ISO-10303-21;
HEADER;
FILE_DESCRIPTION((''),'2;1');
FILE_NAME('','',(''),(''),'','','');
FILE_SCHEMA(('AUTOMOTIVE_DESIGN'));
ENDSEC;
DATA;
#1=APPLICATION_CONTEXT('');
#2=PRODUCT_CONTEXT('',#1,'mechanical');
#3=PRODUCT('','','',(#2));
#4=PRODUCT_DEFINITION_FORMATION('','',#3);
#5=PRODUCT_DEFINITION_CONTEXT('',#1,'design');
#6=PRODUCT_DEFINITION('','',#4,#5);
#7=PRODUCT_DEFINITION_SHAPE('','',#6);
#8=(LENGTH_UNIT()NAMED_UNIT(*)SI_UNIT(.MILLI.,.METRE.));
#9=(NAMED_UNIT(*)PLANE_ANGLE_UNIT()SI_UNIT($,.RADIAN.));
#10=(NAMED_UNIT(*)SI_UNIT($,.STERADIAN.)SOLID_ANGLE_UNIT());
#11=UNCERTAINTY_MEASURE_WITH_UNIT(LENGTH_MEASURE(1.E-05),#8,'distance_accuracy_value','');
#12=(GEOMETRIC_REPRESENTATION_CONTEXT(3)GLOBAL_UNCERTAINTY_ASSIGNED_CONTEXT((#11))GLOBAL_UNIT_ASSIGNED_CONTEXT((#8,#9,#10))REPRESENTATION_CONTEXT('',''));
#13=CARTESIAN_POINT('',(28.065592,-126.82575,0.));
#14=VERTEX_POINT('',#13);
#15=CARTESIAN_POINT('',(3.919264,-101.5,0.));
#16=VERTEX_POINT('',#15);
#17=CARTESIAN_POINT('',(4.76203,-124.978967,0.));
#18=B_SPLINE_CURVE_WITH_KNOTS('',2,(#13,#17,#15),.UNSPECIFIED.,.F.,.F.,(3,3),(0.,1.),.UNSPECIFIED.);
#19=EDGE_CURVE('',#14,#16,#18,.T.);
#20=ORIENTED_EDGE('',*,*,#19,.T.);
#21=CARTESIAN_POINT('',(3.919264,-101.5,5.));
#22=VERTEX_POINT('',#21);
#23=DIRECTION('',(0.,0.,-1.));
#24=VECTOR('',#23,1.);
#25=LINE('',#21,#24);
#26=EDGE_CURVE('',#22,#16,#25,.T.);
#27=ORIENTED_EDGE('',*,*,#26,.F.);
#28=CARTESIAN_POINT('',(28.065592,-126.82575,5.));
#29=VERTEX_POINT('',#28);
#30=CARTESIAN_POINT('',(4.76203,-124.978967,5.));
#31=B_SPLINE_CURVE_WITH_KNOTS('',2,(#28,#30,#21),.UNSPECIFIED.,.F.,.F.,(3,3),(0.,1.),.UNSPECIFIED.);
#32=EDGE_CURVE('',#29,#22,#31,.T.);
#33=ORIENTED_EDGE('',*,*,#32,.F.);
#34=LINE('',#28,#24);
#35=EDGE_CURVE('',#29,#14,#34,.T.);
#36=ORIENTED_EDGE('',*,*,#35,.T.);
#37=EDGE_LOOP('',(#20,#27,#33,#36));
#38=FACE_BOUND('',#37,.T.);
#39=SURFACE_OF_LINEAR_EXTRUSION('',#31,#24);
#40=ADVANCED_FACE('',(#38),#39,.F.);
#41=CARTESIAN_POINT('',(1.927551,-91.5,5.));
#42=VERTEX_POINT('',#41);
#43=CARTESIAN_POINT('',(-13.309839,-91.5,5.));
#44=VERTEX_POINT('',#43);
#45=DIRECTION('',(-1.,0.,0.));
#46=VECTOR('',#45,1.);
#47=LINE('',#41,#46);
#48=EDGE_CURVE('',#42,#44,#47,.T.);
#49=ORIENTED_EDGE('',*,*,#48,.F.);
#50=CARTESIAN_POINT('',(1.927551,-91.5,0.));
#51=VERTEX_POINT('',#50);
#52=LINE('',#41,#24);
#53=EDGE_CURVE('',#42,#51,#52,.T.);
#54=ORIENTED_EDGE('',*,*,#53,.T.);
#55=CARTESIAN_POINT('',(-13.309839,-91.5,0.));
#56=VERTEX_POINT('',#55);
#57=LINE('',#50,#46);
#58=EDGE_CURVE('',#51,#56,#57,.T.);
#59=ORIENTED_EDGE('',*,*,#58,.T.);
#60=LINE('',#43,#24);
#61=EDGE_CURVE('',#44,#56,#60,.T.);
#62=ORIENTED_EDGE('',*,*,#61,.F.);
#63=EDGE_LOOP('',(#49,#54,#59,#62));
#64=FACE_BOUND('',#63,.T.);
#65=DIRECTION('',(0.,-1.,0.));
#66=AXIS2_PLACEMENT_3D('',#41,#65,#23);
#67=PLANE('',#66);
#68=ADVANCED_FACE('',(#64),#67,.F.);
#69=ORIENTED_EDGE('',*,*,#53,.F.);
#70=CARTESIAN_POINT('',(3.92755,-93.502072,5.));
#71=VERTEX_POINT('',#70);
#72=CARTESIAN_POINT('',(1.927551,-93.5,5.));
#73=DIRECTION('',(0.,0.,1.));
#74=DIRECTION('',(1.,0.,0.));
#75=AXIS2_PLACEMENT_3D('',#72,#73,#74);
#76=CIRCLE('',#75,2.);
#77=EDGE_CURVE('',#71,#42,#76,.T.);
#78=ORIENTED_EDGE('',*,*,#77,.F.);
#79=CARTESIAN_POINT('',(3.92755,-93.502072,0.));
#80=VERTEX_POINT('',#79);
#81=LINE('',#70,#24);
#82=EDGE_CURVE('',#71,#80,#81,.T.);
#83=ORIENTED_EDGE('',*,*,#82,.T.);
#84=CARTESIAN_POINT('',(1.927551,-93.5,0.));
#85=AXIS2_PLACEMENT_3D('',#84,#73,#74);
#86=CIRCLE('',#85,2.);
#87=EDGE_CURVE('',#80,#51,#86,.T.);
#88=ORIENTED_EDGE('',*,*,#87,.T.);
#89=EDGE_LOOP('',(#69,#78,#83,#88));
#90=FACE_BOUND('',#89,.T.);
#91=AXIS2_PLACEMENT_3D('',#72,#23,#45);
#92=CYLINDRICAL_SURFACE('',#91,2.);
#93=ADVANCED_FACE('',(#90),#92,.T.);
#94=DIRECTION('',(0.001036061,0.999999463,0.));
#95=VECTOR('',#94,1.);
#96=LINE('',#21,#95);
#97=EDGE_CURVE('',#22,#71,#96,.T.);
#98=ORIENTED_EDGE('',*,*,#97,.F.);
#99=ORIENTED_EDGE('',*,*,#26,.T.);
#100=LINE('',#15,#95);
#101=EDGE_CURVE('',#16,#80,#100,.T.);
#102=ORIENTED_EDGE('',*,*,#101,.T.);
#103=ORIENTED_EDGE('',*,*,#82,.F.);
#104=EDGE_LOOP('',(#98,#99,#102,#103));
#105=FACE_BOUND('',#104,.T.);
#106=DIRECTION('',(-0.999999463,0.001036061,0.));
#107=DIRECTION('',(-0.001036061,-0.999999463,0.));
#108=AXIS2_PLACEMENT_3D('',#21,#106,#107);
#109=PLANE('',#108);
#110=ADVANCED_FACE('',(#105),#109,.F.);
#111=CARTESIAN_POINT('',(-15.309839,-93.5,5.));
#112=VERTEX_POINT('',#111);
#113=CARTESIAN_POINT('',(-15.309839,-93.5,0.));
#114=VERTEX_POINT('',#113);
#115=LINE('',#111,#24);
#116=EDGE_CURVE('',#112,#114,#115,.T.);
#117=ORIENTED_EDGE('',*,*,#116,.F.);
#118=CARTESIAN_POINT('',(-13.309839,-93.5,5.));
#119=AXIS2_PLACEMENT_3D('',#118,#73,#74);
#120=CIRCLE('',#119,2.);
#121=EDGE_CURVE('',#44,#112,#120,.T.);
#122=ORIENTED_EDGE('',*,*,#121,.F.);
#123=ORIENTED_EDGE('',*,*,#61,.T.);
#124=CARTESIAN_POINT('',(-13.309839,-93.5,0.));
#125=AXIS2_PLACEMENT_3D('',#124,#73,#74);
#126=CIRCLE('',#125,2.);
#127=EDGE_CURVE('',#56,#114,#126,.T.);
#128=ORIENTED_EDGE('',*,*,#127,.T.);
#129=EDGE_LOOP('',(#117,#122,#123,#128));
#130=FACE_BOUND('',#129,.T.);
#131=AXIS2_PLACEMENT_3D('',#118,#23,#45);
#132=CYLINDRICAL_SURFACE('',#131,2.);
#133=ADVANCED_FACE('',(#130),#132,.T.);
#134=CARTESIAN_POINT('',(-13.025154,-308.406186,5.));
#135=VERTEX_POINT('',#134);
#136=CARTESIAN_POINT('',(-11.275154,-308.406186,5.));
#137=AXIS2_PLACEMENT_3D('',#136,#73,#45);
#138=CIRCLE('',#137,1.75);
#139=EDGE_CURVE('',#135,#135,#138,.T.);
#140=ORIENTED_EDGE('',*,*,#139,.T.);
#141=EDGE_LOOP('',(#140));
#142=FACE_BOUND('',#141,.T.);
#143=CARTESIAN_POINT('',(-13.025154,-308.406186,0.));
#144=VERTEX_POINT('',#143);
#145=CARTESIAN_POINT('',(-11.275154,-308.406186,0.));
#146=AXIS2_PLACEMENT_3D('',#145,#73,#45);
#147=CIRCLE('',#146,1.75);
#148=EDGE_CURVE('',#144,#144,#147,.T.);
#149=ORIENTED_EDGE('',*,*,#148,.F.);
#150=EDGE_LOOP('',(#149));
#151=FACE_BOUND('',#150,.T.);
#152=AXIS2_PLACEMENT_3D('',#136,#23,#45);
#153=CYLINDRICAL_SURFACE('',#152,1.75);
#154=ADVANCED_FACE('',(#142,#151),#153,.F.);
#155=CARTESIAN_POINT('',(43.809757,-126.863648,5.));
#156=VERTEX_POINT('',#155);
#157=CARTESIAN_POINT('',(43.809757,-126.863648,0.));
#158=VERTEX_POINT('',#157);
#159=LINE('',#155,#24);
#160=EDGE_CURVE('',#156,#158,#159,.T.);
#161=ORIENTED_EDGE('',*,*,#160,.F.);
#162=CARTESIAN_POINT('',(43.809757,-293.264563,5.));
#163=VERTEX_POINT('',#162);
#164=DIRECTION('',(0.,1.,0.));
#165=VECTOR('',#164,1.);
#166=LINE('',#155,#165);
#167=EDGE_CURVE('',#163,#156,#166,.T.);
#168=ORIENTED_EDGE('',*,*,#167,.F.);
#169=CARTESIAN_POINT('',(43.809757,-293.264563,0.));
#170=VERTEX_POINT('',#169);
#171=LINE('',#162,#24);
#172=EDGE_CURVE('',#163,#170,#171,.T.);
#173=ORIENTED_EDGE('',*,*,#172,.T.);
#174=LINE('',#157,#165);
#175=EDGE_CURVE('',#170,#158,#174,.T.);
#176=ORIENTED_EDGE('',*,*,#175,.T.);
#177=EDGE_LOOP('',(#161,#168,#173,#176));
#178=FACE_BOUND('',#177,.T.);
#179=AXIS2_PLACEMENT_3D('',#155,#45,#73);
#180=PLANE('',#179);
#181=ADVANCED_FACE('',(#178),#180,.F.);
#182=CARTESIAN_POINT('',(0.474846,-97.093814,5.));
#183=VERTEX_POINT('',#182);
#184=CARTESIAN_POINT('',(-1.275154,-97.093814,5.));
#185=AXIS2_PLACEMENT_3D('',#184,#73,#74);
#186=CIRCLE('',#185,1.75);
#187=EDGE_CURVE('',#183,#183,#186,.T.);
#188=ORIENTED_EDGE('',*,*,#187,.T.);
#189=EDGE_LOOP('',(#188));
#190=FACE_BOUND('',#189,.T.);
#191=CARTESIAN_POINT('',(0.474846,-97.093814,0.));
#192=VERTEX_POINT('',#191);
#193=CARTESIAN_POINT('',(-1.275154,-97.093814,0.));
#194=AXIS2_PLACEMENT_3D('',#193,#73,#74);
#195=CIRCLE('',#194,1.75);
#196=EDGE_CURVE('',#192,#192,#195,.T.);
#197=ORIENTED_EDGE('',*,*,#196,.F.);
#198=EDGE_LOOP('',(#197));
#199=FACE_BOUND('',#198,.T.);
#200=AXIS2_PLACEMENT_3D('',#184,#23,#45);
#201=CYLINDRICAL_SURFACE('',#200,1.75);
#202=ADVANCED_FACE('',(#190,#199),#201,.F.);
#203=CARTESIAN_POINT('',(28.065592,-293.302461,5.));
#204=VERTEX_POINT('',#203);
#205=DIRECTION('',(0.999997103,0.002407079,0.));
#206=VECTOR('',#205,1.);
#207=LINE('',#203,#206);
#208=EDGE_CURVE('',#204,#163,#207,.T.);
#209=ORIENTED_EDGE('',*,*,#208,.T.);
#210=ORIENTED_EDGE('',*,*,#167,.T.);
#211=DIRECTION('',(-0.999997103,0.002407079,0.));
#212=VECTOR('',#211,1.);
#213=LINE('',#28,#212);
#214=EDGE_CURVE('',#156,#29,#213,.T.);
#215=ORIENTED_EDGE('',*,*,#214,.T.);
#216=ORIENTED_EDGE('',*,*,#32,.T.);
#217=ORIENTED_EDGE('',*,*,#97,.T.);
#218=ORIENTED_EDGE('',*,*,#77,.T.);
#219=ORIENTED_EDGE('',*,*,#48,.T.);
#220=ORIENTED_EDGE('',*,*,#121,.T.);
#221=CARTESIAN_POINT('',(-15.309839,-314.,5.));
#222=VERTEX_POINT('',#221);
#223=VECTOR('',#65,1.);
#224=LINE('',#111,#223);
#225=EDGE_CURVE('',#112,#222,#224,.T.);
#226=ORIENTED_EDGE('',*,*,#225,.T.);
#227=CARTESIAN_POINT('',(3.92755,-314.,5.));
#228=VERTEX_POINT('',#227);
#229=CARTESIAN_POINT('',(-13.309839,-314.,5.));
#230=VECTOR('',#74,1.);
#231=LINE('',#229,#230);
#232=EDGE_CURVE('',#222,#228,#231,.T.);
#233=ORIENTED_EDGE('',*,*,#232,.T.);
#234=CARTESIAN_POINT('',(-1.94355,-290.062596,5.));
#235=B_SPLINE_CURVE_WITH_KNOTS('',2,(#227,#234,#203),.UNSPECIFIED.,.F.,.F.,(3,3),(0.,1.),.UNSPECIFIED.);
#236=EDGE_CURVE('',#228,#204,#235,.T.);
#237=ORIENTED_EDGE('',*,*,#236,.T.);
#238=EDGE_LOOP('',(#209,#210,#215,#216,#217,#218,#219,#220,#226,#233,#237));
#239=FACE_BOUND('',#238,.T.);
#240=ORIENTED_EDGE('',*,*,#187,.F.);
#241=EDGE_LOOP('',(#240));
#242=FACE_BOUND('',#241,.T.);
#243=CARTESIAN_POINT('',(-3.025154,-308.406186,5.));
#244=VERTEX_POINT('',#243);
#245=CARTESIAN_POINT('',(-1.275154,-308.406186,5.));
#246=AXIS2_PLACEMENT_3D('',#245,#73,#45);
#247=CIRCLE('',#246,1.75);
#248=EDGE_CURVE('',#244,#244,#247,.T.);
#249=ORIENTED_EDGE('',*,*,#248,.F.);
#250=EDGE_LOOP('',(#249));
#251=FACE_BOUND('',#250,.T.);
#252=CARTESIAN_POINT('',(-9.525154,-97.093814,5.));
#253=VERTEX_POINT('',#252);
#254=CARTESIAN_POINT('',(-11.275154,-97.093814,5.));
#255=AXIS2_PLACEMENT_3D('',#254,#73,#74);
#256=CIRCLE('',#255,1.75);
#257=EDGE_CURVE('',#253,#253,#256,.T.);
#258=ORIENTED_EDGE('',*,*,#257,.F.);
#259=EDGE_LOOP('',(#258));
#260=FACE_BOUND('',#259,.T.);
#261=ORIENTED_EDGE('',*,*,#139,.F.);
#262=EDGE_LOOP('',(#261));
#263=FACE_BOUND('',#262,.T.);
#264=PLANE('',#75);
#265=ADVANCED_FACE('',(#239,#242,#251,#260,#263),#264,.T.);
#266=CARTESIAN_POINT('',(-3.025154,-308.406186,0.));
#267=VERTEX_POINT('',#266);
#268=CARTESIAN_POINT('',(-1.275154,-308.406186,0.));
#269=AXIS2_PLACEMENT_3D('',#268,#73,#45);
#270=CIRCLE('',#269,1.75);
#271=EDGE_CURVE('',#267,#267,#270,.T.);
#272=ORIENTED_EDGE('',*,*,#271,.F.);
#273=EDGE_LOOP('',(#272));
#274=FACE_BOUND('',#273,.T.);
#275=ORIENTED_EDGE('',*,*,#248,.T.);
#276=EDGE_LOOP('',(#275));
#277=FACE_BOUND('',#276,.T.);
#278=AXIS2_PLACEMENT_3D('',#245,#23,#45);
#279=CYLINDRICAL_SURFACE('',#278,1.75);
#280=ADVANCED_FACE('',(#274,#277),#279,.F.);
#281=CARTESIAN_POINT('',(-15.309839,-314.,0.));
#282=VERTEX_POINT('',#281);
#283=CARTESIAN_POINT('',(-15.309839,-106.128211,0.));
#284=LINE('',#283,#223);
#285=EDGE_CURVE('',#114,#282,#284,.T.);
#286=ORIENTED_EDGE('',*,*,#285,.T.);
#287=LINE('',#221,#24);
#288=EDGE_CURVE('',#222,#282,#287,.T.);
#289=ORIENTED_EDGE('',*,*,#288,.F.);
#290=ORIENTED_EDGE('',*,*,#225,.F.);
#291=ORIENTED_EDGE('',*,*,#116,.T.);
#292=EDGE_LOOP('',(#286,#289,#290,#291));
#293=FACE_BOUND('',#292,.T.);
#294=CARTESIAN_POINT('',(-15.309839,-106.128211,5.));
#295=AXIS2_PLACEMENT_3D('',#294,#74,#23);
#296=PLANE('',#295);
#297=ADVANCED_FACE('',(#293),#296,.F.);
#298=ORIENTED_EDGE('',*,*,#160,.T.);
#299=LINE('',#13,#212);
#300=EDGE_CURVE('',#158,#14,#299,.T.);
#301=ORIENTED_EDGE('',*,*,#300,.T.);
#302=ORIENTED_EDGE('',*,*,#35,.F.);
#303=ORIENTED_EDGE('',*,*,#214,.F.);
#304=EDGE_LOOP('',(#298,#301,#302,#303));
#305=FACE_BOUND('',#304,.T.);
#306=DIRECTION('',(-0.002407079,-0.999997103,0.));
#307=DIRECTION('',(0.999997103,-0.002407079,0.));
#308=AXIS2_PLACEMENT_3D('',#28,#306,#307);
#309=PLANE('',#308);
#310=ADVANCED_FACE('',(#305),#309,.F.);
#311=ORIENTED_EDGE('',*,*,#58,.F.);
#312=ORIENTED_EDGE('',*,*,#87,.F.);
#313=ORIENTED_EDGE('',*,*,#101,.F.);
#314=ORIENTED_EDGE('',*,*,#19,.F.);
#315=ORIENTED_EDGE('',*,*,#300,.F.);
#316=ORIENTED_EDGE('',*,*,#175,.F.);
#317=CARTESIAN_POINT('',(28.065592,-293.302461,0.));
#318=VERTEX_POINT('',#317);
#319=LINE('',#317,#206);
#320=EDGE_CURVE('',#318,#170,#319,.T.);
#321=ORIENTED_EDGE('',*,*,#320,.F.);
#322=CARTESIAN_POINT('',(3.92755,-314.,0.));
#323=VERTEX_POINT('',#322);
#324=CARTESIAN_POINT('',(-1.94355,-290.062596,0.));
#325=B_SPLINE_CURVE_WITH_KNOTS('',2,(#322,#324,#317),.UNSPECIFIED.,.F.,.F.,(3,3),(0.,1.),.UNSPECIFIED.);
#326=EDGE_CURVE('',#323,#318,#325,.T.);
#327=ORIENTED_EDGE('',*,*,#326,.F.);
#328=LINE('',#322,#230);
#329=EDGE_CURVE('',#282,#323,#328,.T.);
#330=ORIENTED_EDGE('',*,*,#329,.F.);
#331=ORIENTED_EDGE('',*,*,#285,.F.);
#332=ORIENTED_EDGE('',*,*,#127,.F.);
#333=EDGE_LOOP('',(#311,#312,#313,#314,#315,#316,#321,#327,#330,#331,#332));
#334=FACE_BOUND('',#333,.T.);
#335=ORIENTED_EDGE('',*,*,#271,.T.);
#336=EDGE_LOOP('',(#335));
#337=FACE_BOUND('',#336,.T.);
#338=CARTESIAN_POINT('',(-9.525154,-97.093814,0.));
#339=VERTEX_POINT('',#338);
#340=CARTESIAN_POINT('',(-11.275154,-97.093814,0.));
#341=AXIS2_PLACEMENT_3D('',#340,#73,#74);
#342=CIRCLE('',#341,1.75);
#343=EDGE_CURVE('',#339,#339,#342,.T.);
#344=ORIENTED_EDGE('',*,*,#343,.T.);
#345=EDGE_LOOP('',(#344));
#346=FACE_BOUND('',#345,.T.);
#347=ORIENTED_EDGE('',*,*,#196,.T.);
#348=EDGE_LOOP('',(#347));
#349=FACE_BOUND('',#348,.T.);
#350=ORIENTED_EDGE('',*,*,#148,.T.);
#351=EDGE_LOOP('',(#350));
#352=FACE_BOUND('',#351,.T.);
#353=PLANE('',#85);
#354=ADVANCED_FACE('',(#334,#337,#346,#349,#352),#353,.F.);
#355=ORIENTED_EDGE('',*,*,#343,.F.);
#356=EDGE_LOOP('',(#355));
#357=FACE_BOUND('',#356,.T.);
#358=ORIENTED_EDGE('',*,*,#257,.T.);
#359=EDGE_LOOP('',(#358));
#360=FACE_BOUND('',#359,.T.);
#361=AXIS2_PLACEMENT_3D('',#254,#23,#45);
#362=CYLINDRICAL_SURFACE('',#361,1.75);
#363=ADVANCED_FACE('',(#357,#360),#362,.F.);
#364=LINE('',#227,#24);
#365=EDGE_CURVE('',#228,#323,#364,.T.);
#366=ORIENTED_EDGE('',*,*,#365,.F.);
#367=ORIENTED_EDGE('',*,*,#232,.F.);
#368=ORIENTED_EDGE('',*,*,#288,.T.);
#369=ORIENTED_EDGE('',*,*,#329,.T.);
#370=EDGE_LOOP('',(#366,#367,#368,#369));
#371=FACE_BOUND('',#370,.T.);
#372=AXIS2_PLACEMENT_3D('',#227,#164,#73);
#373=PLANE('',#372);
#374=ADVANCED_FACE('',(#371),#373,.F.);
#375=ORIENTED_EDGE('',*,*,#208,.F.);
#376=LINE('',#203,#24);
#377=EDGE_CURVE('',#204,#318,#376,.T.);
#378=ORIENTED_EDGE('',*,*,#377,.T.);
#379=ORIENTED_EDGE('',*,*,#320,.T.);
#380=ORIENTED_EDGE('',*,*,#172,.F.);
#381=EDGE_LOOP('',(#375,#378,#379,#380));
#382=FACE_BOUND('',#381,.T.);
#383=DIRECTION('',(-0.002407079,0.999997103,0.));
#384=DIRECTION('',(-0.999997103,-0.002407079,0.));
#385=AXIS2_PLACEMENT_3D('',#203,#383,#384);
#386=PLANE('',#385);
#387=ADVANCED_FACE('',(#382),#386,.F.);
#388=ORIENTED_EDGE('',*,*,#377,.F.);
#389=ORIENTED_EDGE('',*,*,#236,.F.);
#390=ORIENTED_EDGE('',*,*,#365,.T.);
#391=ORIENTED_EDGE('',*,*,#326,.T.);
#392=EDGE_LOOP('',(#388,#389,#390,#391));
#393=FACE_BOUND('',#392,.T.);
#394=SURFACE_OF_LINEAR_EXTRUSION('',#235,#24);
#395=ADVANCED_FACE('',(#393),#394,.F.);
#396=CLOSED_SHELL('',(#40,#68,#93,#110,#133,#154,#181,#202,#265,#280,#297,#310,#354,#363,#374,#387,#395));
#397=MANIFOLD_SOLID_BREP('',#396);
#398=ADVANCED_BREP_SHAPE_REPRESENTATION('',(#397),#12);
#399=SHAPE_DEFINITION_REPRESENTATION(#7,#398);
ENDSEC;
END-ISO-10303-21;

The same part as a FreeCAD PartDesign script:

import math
import FreeCAD as App
import Part
import Sketcher
from FreeCAD import Vector
Q = App.Units.Quantity

doc = App.newDocument("Part")
body = doc.addObject("PartDesign::Body", "Body")

# Sketch on XY plane
sketch1 = body.newObject("Sketcher::SketchObject", "Sketch")
sketch1.AttachmentSupport = (doc.getObject("XY_Plane"), [""])
sketch1.MapMode = "FlatFace"
sketch1.addGeometry([
    Part.LineSegment(Vector(-15.309839, -314, 0), Vector(3.92755, -314, 0)),  # 0
    Part.BSplineCurve([Vector(3.92755, -314, 0), Vector(-1.94355, -290.062596, 0), Vector(28.065592, -293.302461, 0)], [3, 3], [0, 1], False, 2, [1, 1, 1], False),  # 1
    Part.LineSegment(Vector(28.065592, -293.302461, 0), Vector(43.809757, -293.264563, 0)),  # 2
    Part.LineSegment(Vector(43.809757, -293.264563, 0), Vector(43.809757, -126.863648, 0)),  # 3
    Part.LineSegment(Vector(43.809757, -126.863648, 0), Vector(28.065592, -126.82575, 0)),  # 4
    Part.BSplineCurve([Vector(3.919264, -101.5, 0), Vector(4.76203, -124.978967, 0), Vector(28.065592, -126.82575, 0)], [3, 3], [0, 1], False, 2, [1, 1, 1], False),  # 5
    Part.LineSegment(Vector(3.919264, -101.5, 0), Vector(3.92755, -93.502072, 0)),  # 6
    Part.ArcOfCircle(Part.Circle(Vector(1.927551, -93.5, 0), Vector(0, 0, 1), 2), math.radians(-0.059362), math.radians(90)),  # 7
    Part.LineSegment(Vector(1.927551, -91.5, 0), Vector(-13.309839, -91.5, 0)),  # 8
    Part.ArcOfCircle(Part.Circle(Vector(-13.309839, -93.5, 0), Vector(0, 0, 1), 2), math.radians(90), math.radians(180)),  # 9
    Part.LineSegment(Vector(-15.309839, -93.5, 0), Vector(-15.309839, -314, 0)),  # 10
    Part.Circle(Vector(-1.275154, -308.406186, 0), Vector(0, 0, 1), 1.75),  # 11
    Part.Circle(Vector(-11.275154, -308.406186, 0), Vector(0, 0, 1), 1.75),  # 12
    Part.Circle(Vector(-1.275154, -97.093814, 0), Vector(0, 0, 1), 1.75),  # 13
    Part.Circle(Vector(-11.275154, -97.093814, 0), Vector(0, 0, 1), 1.75),  # 14
], False)
sketch1.addConstraint([
    Sketcher.Constraint("Block", 1),
    Sketcher.Constraint("Block", 5),
    Sketcher.Constraint("Coincident", 0, 2, 1, 1),
    Sketcher.Constraint("Coincident", 1, 2, 2, 1),
    Sketcher.Constraint("Coincident", 2, 2, 3, 1),
    Sketcher.Constraint("Coincident", 3, 2, 4, 1),
    Sketcher.Constraint("Coincident", 4, 2, 5, 2),
    Sketcher.Constraint("Coincident", 5, 1, 6, 1),
    Sketcher.Constraint("Coincident", 6, 2, 7, 1),
    Sketcher.Constraint("Coincident", 7, 2, 8, 1),
    Sketcher.Constraint("Coincident", 8, 2, 9, 1),
    Sketcher.Constraint("Coincident", 9, 2, 10, 1),
    Sketcher.Constraint("Coincident", 10, 2, 0, 1),
    Sketcher.Constraint("Horizontal", 0),
    Sketcher.Constraint("Vertical", 3),
    Sketcher.Constraint("Horizontal", 8),
    Sketcher.Constraint("Vertical", 10),
    Sketcher.Constraint("Radius", 7, Q("2 mm")),
    Sketcher.Constraint("Radius", 9, Q("2 mm")),
    Sketcher.Constraint("Diameter", 11, Q("3.5 mm")),
    Sketcher.Constraint("Diameter", 12, Q("3.5 mm")),
    Sketcher.Constraint("Diameter", 13, Q("3.5 mm")),
    Sketcher.Constraint("Diameter", 14, Q("3.5 mm")),
    Sketcher.Constraint("DistanceY", 10, 2, 10, 1, Q("220.5 mm")),
    Sketcher.Constraint("DistanceX", 12, 3, 11, 3, Q("10 mm")),
    Sketcher.Constraint("DistanceX", 12, 3, 13, 3, Q("10 mm")),
    Sketcher.Constraint("DistanceX", 14, 3, 13, 3, Q("10 mm")),
    Sketcher.Constraint("DistanceX", 7, 3, 0, 2, Q("1.999999 mm")),
    Sketcher.Constraint("DistanceX", 7, 2, 6, 2, Q("1.999999 mm")),
    Sketcher.Constraint("DistanceX", 9, 2, 8, 2, Q("2 mm")),
    Sketcher.Constraint("DistanceY", 9, 2, 8, 2, Q("2 mm")),
    Sketcher.Constraint("DistanceX", 0, 1, 0, 2, Q("19.237389 mm")),
    Sketcher.Constraint("Distance", 2, Q("15.744211 mm")),
    Sketcher.Constraint("DistanceY", 3, 1, 3, 2, Q("166.400915 mm")),
    Sketcher.Constraint("DistanceY", 3, 2, -1, 1, Q("126.863648 mm")),
    Sketcher.Constraint("DistanceX", 11, 3, 2, 2, Q("45.084911 mm")),
    Sketcher.Constraint("DistanceY", 2, 2, 13, 3, Q("196.170749 mm")),
    Sketcher.Constraint("DistanceY", 2, 2, 14, 3, Q("196.170749 mm")),
    Sketcher.Constraint("DistanceY", 13, 3, 6, 2, Q("3.591742 mm")),
    Sketcher.Constraint("DistanceY", 11, 3, -1, 1, Q("308.406186 mm")),
    Sketcher.Constraint("DistanceY", 12, 3, -1, 1, Q("308.406186 mm")),
])
pad1 = body.newObject("PartDesign::Pad", "Pad")
pad1.Profile = sketch1
pad1.Length = 5

doc.recompute()
